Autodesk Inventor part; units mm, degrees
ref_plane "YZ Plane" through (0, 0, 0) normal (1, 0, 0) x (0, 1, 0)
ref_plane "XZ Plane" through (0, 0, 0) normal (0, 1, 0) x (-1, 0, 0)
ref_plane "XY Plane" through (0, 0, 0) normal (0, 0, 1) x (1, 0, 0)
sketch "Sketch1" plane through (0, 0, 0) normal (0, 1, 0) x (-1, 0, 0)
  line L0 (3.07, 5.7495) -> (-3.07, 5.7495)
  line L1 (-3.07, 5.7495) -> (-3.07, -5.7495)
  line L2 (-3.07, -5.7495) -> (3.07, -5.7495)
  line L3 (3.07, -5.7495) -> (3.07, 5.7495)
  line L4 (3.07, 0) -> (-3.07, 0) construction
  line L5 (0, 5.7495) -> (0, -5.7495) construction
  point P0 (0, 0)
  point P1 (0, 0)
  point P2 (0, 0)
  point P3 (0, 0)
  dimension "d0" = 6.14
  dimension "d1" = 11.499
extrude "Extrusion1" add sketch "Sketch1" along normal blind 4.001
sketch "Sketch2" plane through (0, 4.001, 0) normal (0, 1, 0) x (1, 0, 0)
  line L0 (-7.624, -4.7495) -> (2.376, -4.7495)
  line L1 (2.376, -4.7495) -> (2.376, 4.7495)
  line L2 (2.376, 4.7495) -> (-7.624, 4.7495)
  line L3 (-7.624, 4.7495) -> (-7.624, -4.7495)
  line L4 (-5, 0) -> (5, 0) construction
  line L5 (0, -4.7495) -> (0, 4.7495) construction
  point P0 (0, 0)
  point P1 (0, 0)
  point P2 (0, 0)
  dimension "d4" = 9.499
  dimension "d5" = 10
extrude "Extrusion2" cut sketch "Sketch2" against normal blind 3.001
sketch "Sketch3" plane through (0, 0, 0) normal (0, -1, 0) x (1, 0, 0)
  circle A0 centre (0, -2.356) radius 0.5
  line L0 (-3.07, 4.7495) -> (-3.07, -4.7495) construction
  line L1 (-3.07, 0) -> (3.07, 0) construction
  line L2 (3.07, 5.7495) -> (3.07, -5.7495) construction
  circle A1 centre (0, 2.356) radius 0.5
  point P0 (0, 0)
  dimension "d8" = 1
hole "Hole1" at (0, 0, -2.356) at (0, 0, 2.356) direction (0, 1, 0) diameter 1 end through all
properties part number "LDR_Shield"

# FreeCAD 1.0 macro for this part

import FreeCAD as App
import Part
import Sketcher

V = App.Vector


def add_polygon(sketch, points):
    """Adds a closed chain of lines whose ends are joined by coincident constraints."""
    first, n = sketch.GeometryCount, len(points)
    for a, b in zip(points, points[1:] + points[:1]):
        sketch.addGeometry(Part.LineSegment(App.Vector(*a, 0), App.Vector(*b, 0)), False)
    for i in range(n):
        sketch.addConstraint(Sketcher.Constraint("Coincident", first + i, 2, first + (i + 1) % n, 1))

doc = App.newDocument("Part")
body = doc.addObject("PartDesign::Body", "Body")

# Sketch on XZ plane
sketch1 = body.newObject("Sketcher::SketchObject", "Sketch")
sketch1.AttachmentSupport = (doc.getObject("XZ_Plane"), [""])
sketch1.MapMode = "FlatFace"
add_polygon(sketch1, [(-3, -6), (-3, 6), (3, 6), (3, -6)])  # lines 0-3
sketch1.addConstraint(Sketcher.Constraint("Vertical", 0))
sketch1.addConstraint(Sketcher.Constraint("Horizontal", 1))
sketch1.addConstraint(Sketcher.Constraint("Vertical", 2))
sketch1.addConstraint(Sketcher.Constraint("Horizontal", 3))
sketch1.addConstraint(Sketcher.Constraint("Symmetric", 0, 2, 2, 2, -1, 1))
sketch1.addConstraint(Sketcher.Constraint("DistanceX", 1, 1, 1, 2, 6.14))
sketch1.addConstraint(Sketcher.Constraint("DistanceY", 0, 1, 0, 2, 11.499))
pad1 = body.newObject("PartDesign::Pad", "Pad")
pad1.Profile = sketch1
pad1.Length = 4.001
pad1.Reversed = True

# Sketch on XZ plane
sketch2 = body.newObject("Sketcher::SketchObject", "Sketch001")
sketch2.AttachmentSupport = (doc.getObject("XZ_Plane"), [""])
sketch2.MapMode = "FlatFace"
sketch2.AttachmentOffset = App.Placement(V(0, 0, -4.001), App.Rotation())
add_polygon(sketch2, [(-8, -5), (-8, 5), (2, 5), (2, -5)])  # lines 0-3
sketch2.addConstraint(Sketcher.Constraint("Vertical", 0))
sketch2.addConstraint(Sketcher.Constraint("Horizontal", 1))
sketch2.addConstraint(Sketcher.Constraint("Vertical", 2))
sketch2.addConstraint(Sketcher.Constraint("Horizontal", 3))
sketch2.addConstraint(Sketcher.Constraint("DistanceX", 1, 1, 1, 2, 10.0))
sketch2.addConstraint(Sketcher.Constraint("DistanceY", 0, 1, 0, 2, 9.499))
sketch2.addConstraint(Sketcher.Constraint("DistanceX", 0, 2, -1, 1, 7.624))
sketch2.addConstraint(Sketcher.Constraint("DistanceY", -1, 1, 0, 2, 4.7495))
pocket1 = body.newObject("PartDesign::Pocket", "Pocket")
pocket1.Profile = sketch2
pocket1.Length = 3.001
pocket1.Reversed = True

# Sketch on XZ plane
sketch3 = body.newObject("Sketcher::SketchObject", "Sketch002")
sketch3.AttachmentSupport = (doc.getObject("XZ_Plane"), [""])
sketch3.MapMode = "FlatFace"
sketch3.addGeometry(Part.Circle(V(0, -2.4, 0), V(0, 0, 1), 0.5), False)
sketch3.addGeometry(Part.Circle(V(0, 2.4, 0), V(0, 0, 1), 0.5), False)
sketch3.addConstraint(Sketcher.Constraint("Equal", 0, 1))
sketch3.addConstraint(Sketcher.Constraint("Symmetric", 0, 3, 1, 3, -1, 1))
sketch3.addConstraint(Sketcher.Constraint("PointOnObject", 0, 3, -2))
sketch3.addConstraint(Sketcher.Constraint("Diameter", 0, 1.0))
sketch3.addConstraint(Sketcher.Constraint("DistanceY", 0, 3, -1, 1, 2.356))
doc.recompute()
hole = body.newObject("PartDesign::Hole", "Hole")
hole.Profile = sketch3
hole.ThreadType = "None"
hole.Diameter = 1
hole.DepthType = "ThroughAll"

doc.recompute()
